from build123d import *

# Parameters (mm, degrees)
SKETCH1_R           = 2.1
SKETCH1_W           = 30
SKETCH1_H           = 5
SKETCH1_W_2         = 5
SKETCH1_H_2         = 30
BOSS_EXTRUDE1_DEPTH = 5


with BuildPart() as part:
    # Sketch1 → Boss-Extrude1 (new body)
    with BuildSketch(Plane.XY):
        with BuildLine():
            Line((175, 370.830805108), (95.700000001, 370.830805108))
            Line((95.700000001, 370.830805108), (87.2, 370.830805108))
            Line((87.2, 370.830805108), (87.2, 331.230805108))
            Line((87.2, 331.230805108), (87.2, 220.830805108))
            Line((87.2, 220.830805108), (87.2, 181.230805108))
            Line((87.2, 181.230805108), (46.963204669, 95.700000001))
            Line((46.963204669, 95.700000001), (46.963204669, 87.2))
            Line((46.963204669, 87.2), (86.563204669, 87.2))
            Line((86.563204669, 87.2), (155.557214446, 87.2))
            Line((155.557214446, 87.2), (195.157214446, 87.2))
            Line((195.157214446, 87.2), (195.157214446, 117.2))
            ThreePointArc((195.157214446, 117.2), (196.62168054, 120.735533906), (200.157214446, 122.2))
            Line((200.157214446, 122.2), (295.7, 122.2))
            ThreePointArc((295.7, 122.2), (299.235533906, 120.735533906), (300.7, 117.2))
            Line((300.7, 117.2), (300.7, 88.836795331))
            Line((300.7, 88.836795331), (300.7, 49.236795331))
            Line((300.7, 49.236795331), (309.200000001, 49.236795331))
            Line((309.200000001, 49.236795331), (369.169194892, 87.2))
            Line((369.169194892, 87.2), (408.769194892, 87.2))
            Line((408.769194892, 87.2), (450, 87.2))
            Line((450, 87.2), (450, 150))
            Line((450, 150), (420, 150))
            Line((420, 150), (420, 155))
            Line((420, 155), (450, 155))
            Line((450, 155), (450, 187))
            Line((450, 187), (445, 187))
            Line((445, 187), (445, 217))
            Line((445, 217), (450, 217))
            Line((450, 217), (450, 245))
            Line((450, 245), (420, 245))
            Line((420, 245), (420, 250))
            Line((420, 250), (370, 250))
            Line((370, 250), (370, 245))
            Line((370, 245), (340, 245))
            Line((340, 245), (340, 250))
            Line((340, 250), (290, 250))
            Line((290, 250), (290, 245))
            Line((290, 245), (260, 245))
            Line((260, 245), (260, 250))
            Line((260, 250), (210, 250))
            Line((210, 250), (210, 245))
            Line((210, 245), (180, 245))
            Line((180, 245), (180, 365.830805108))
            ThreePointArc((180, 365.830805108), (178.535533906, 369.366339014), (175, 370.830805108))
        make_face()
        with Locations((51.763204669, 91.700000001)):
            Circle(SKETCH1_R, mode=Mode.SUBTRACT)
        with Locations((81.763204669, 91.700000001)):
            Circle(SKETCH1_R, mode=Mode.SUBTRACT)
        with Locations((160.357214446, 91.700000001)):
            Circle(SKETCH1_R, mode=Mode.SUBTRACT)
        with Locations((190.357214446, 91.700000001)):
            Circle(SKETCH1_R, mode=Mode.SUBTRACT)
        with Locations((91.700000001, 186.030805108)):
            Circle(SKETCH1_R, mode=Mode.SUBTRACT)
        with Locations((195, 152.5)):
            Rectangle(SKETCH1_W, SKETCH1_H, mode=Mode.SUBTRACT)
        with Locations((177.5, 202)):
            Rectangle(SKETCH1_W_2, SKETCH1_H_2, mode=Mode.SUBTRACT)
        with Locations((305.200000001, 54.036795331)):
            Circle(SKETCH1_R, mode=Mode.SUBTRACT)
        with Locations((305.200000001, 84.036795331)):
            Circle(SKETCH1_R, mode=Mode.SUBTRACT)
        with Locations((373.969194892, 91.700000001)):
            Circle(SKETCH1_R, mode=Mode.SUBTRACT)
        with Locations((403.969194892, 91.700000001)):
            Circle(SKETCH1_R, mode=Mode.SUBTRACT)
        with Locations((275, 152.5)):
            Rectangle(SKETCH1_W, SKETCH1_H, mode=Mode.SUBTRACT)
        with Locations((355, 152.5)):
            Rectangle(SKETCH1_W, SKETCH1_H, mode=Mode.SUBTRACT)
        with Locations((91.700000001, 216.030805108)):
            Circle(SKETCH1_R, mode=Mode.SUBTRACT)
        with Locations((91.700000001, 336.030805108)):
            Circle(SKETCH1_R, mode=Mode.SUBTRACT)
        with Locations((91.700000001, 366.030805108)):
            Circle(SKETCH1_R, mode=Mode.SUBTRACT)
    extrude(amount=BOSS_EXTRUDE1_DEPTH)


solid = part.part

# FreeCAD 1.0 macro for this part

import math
import FreeCAD as App
import Part
import Sketcher

V = App.Vector


def add_polygon(sketch, points):
    """Adds a closed chain of lines whose ends are joined by coincident constraints."""
    first, n = sketch.GeometryCount, len(points)
    for a, b in zip(points, points[1:] + points[:1]):
        sketch.addGeometry(Part.LineSegment(App.Vector(*a, 0), App.Vector(*b, 0)), False)
    for i in range(n):
        sketch.addConstraint(Sketcher.Constraint("Coincident", first + i, 2, first + (i + 1) % n, 1))

doc = App.newDocument("Part")
body = doc.addObject("PartDesign::Body", "Body")

# Sketch on XY plane
sketch1 = body.newObject("Sketcher::SketchObject", "Sketch")
sketch1.AttachmentSupport = (doc.getObject("XY_Plane"), [""])
sketch1.MapMode = "FlatFace"
sketch1.addGeometry(Part.LineSegment(V(175, 370.8, 0), V(87.2, 370.8, 0)), False)  # 0
sketch1.addGeometry(Part.LineSegment(V(87.2, 370.8, 0), V(87.2, 181.2, 0)), False)  # 1
sketch1.addGeometry(Part.LineSegment(V(87.2, 181.2, 0), V(47, 95.7, 0)), False)  # 2
sketch1.addGeometry(Part.LineSegment(V(47, 95.7, 0), V(47, 87.2, 0)), False)  # 3
sketch1.addGeometry(Part.LineSegment(V(47, 87.2, 0), V(195.2, 87.2, 0)), False)  # 4
sketch1.addGeometry(Part.LineSegment(V(195.2, 87.2, 0), V(195.2, 117.2, 0)), False)  # 5
sketch1.addGeometry(Part.ArcOfCircle(Part.Circle(V(200.2, 117.2, 0), V(0, 0, 1), 5), math.radians(90), math.radians(180)), False)  # 6
sketch1.addGeometry(Part.LineSegment(V(200.2, 122.2, 0), V(295.7, 122.2, 0)), False)  # 7
sketch1.addGeometry(Part.ArcOfCircle(Part.Circle(V(295.7, 117.2, 0), V(0, 0, 1), 5), math.radians(0), math.radians(90)), False)  # 8
sketch1.addGeometry(Part.LineSegment(V(300.7, 117.2, 0), V(300.7, 49.2, 0)), False)  # 9
sketch1.addGeometry(Part.LineSegment(V(300.7, 49.2, 0), V(309.2, 49.2, 0)), False)  # 10
sketch1.addGeometry(Part.LineSegment(V(309.2, 49.2, 0), V(369.2, 87.2, 0)), False)  # 11
sketch1.addGeometry(Part.LineSegment(V(369.2, 87.2, 0), V(450, 87.2, 0)), False)  # 12
sketch1.addGeometry(Part.LineSegment(V(450, 87.2, 0), V(450, 150, 0)), False)  # 13
sketch1.addGeometry(Part.LineSegment(V(450, 150, 0), V(420, 150, 0)), False)  # 14
sketch1.addGeometry(Part.LineSegment(V(420, 150, 0), V(420, 155, 0)), False)  # 15
sketch1.addGeometry(Part.LineSegment(V(420, 155, 0), V(450, 155, 0)), False)  # 16
sketch1.addGeometry(Part.LineSegment(V(450, 155, 0), V(450, 187, 0)), False)  # 17
sketch1.addGeometry(Part.LineSegment(V(450, 187, 0), V(445, 187, 0)), False)  # 18
sketch1.addGeometry(Part.LineSegment(V(445, 187, 0), V(445, 217, 0)), False)  # 19
sketch1.addGeometry(Part.LineSegment(V(445, 217, 0), V(450, 217, 0)), False)  # 20
sketch1.addGeometry(Part.LineSegment(V(450, 217, 0), V(450, 245, 0)), False)  # 21
sketch1.addGeometry(Part.LineSegment(V(450, 245, 0), V(420, 245, 0)), False)  # 22
sketch1.addGeometry(Part.LineSegment(V(420, 245, 0), V(420, 250, 0)), False)  # 23
sketch1.addGeometry(Part.LineSegment(V(420, 250, 0), V(370, 250, 0)), False)  # 24
sketch1.addGeometry(Part.LineSegment(V(370, 250, 0), V(370, 245, 0)), False)  # 25
sketch1.addGeometry(Part.LineSegment(V(370, 245, 0), V(340, 245, 0)), False)  # 26
sketch1.addGeometry(Part.LineSegment(V(340, 245, 0), V(340, 250, 0)), False)  # 27
sketch1.addGeometry(Part.LineSegment(V(340, 250, 0), V(290, 250, 0)), False)  # 28
sketch1.addGeometry(Part.LineSegment(V(290, 250, 0), V(290, 245, 0)), False)  # 29
sketch1.addGeometry(Part.LineSegment(V(290, 245, 0), V(260, 245, 0)), False)  # 30
sketch1.addGeometry(Part.LineSegment(V(260, 245, 0), V(260, 250, 0)), False)  # 31
sketch1.addGeometry(Part.LineSegment(V(260, 250, 0), V(210, 250, 0)), False)  # 32
sketch1.addGeometry(Part.LineSegment(V(210, 250, 0), V(210, 245, 0)), False)  # 33
sketch1.addGeometry(Part.LineSegment(V(210, 245, 0), V(180, 245, 0)), False)  # 34
sketch1.addGeometry(Part.LineSegment(V(180, 245, 0), V(180, 365.8, 0)), False)  # 35
sketch1.addGeometry(Part.ArcOfCircle(Part.Circle(V(175, 365.8, 0), V(0, 0, 1), 5), math.radians(0), math.radians(90)), False)  # 36
sketch1.addGeometry(Part.Circle(V(51.8, 91.7, 0), V(0, 0, 1), 2.1), False)  # 37
sketch1.addGeometry(Part.Circle(V(81.8, 91.7, 0), V(0, 0, 1), 2.1), False)  # 38
sketch1.addGeometry(Part.Circle(V(160.4, 91.7, 0), V(0, 0, 1), 2.1), False)  # 39
sketch1.addGeometry(Part.Circle(V(190.4, 91.7, 0), V(0, 0, 1), 2.1), False)  # 40
sketch1.addGeometry(Part.Circle(V(91.7, 186, 0), V(0, 0, 1), 2.1), False)  # 41
add_polygon(sketch1, [(210, 150), (180, 150), (180, 155), (210, 155)])  # lines 42-45
add_polygon(sketch1, [(180, 187), (175, 187), (175, 217), (180, 217)])  # lines 46-49
sketch1.addGeometry(Part.Circle(V(305.2, 54, 0), V(0, 0, 1), 2.1), False)  # 50
sketch1.addGeometry(Part.Circle(V(305.2, 84, 0), V(0, 0, 1), 2.1), False)  # 51
sketch1.addGeometry(Part.Circle(V(374, 91.7, 0), V(0, 0, 1), 2.1), False)  # 52
sketch1.addGeometry(Part.Circle(V(404, 91.7, 0), V(0, 0, 1), 2.1), False)  # 53
add_polygon(sketch1, [(290, 150), (260, 150), (260, 155), (290, 155)])  # lines 54-57
add_polygon(sketch1, [(370, 150), (340, 150), (340, 155), (370, 155)])  # lines 58-61
sketch1.addGeometry(Part.Circle(V(91.7, 216, 0), V(0, 0, 1), 2.1), False)  # 62
sketch1.addGeometry(Part.Circle(V(91.7, 336, 0), V(0, 0, 1), 2.1), False)  # 63
sketch1.addGeometry(Part.Circle(V(91.7, 366, 0), V(0, 0, 1), 2.1), False)  # 64
sketch1.addConstraint([
    Sketcher.Constraint("Coincident", 0, 2, 1, 1),
    Sketcher.Constraint("Coincident", 1, 2, 2, 1),
    Sketcher.Constraint("Coincident", 2, 2, 3, 1),
    Sketcher.Constraint("Coincident", 3, 2, 4, 1),
    Sketcher.Constraint("Coincident", 4, 2, 5, 1),
    Sketcher.Constraint("Tangent", 5, 2, 6, 2),
    Sketcher.Constraint("Tangent", 6, 1, 7, 1),
    Sketcher.Constraint("Tangent", 7, 2, 8, 2),
    Sketcher.Constraint("Tangent", 8, 1, 9, 1),
    Sketcher.Constraint("Coincident", 9, 2, 10, 1),
    Sketcher.Constraint("Coincident", 10, 2, 11, 1),
    Sketcher.Constraint("Coincident", 11, 2, 12, 1),
    Sketcher.Constraint("Coincident", 12, 2, 13, 1),
    Sketcher.Constraint("Coincident", 13, 2, 14, 1),
    Sketcher.Constraint("Coincident", 14, 2, 15, 1),
    Sketcher.Constraint("Coincident", 15, 2, 16, 1),
    Sketcher.Constraint("Coincident", 16, 2, 17, 1),
    Sketcher.Constraint("Coincident", 17, 2, 18, 1),
    Sketcher.Constraint("Coincident", 18, 2, 19, 1),
    Sketcher.Constraint("Coincident", 19, 2, 20, 1),
    Sketcher.Constraint("Coincident", 20, 2, 21, 1),
    Sketcher.Constraint("Coincident", 21, 2, 22, 1),
    Sketcher.Constraint("Coincident", 22, 2, 23, 1),
    Sketcher.Constraint("Coincident", 23, 2, 24, 1),
    Sketcher.Constraint("Coincident", 24, 2, 25, 1),
    Sketcher.Constraint("Coincident", 25, 2, 26, 1),
    Sketcher.Constraint("Coincident", 26, 2, 27, 1),
    Sketcher.Constraint("Coincident", 27, 2, 28, 1),
    Sketcher.Constraint("Coincident", 28, 2, 29, 1),
    Sketcher.Constraint("Coincident", 29, 2, 30, 1),
    Sketcher.Constraint("Coincident", 30, 2, 31, 1),
    Sketcher.Constraint("Coincident", 31, 2, 32, 1),
    Sketcher.Constraint("Coincident", 32, 2, 33, 1),
    Sketcher.Constraint("Coincident", 33, 2, 34, 1),
    Sketcher.Constraint("Coincident", 34, 2, 35, 1),
    Sketcher.Constraint("Tangent", 35, 2, 36, 1),
    Sketcher.Constraint("Tangent", 36, 2, 0, 1),
    Sketcher.Constraint("Horizontal", 0),
    Sketcher.Constraint("Vertical", 1),
    Sketcher.Constraint("Vertical", 3),
    Sketcher.Constraint("Horizontal", 4),
    Sketcher.Constraint("Vertical", 5),
    Sketcher.Constraint("Horizontal", 7),
    Sketcher.Constraint("Vertical", 9),
    Sketcher.Constraint("Horizontal", 10),
    Sketcher.Constraint("Horizontal", 12),
    Sketcher.Constraint("Vertical", 13),
    Sketcher.Constraint("Horizontal", 14),
    Sketcher.Constraint("Vertical", 15),
    Sketcher.Constraint("Horizontal", 16),
    Sketcher.Constraint("Vertical", 17),
    Sketcher.Constraint("Horizontal", 18),
    Sketcher.Constraint("Vertical", 19),
    Sketcher.Constraint("Horizontal", 20),
    Sketcher.Constraint("Vertical", 21),
    Sketcher.Constraint("Horizontal", 22),
    Sketcher.Constraint("Vertical", 23),
    Sketcher.Constraint("Horizontal", 24),
    Sketcher.Constraint("Vertical", 25),
    Sketcher.Constraint("Horizontal", 26),
    Sketcher.Constraint("Vertical", 27),
    Sketcher.Constraint("Horizontal", 28),
    Sketcher.Constraint("Vertical", 29),
    Sketcher.Constraint("Horizontal", 30),
    Sketcher.Constraint("Vertical", 31),
    Sketcher.Constraint("Horizontal", 32),
    Sketcher.Constraint("Vertical", 33),
    Sketcher.Constraint("Horizontal", 34),
    Sketcher.Constraint("Vertical", 35),
    Sketcher.Constraint("Horizontal", 42),
    Sketcher.Constraint("Vertical", 43),
    Sketcher.Constraint("Horizontal", 44),
    Sketcher.Constraint("Vertical", 45),
    Sketcher.Constraint("Horizontal", 46),
    Sketcher.Constraint("Vertical", 47),
    Sketcher.Constraint("Horizontal", 48),
    Sketcher.Constraint("Vertical", 49),
    Sketcher.Constraint("Horizontal", 54),
    Sketcher.Constraint("Vertical", 55),
    Sketcher.Constraint("Horizontal", 56),
    Sketcher.Constraint("Vertical", 57),
    Sketcher.Constraint("Horizontal", 58),
    Sketcher.Constraint("Vertical", 59),
    Sketcher.Constraint("Horizontal", 60),
    Sketcher.Constraint("Vertical", 61),
    Sketcher.Constraint("Equal", 6, 8),
    Sketcher.Constraint("Equal", 8, 36),
    Sketcher.Constraint("Equal", 37, 38),
    Sketcher.Constraint("Equal", 38, 39),
    Sketcher.Constraint("Equal", 39, 40),
    Sketcher.Constraint("Equal", 40, 41),
    Sketcher.Constraint("Equal", 41, 50),
    Sketcher.Constraint("Equal", 50, 51),
    Sketcher.Constraint("Equal", 51, 52),
    Sketcher.Constraint("Equal", 52, 53),
    Sketcher.Constraint("Equal", 53, 62),
    Sketcher.Constraint("Equal", 62, 63),
    Sketcher.Constraint("Equal", 63, 64),
    Sketcher.Constraint("Horizontal", 37, 3, 38, 3),
    Sketcher.Constraint("Horizontal", 38, 3, 39, 3),
    Sketcher.Constraint("Horizontal", 39, 3, 40, 3),
    Sketcher.Constraint("Horizontal", 40, 3, 52, 3),
    Sketcher.Constraint("Horizontal", 52, 3, 53, 3),
    Sketcher.Constraint("Horizontal", 4, 2, 11, 2),
    Sketcher.Constraint("Horizontal", 22, 2, 25, 2),
    Sketcher.Constraint("Horizontal", 24, 2, 27, 2),
    Sketcher.Constraint("Horizontal", 26, 2, 29, 2),
    Sketcher.Constraint("Horizontal", 28, 2, 31, 2),
    Sketcher.Constraint("Horizontal", 30, 2, 33, 2),
    Sketcher.Constraint("Horizontal", 14, 2, 42, 2),
    Sketcher.Constraint("Horizontal", 16, 2, 43, 2),
    Sketcher.Constraint("Horizontal", 18, 2, 46, 2),
    Sketcher.Constraint("Horizontal", 20, 2, 47, 2),
    Sketcher.Constraint("Horizontal", 45, 2, 54, 2),
    Sketcher.Constraint("Horizontal", 44, 2, 55, 2),
    Sketcher.Constraint("Horizontal", 57, 2, 58, 2),
    Sketcher.Constraint("Horizontal", 56, 2, 59, 2),
    Sketcher.Constraint("Vertical", 50, 3, 51, 3),
    Sketcher.Constraint("Vertical", 41, 3, 62, 3),
    Sketcher.Constraint("Vertical", 62, 3, 63, 3),
    Sketcher.Constraint("Vertical", 63, 3, 64, 3),
    Sketcher.Constraint("Vertical", 13, 2, 16, 2),
    Sketcher.Constraint("Vertical", 17, 2, 20, 2),
    Sketcher.Constraint("Vertical", 15, 2, 22, 2),
    Sketcher.Constraint("Vertical", 35, 2, 42, 2),
    Sketcher.Constraint("Vertical", 33, 2, 44, 2),
    Sketcher.Constraint("Vertical", 36, 2, 46, 2),
    Sketcher.Constraint("Vertical", 43, 2, 48, 2),
    Sketcher.Constraint("Vertical", 31, 2, 54, 2),
    Sketcher.Constraint("Vertical", 29, 2, 56, 2),
    Sketcher.Constraint("Vertical", 27, 2, 58, 2),
    Sketcher.Constraint("Vertical", 25, 2, 60, 2),
    Sketcher.Constraint("Equal", 22, 26),
    Sketcher.Constraint("Equal", 24, 28),
    Sketcher.Constraint("Equal", 26, 30),
    Sketcher.Constraint("Equal", 28, 32),
    Sketcher.Constraint("Equal", 30, 34),
    Sketcher.Constraint("Equal", 20, 46),
    Sketcher.Constraint("Equal", 10, 3),
    Sketcher.Constraint("Equal", 60, 5),
    Sketcher.Constraint("Equal", 48, 15),
    Sketcher.Constraint("Equal", 5, 19),
    Sketcher.Constraint("Equal", 15, 23),
    Sketcher.Constraint("Radius", 6, 5.0),
    Sketcher.Constraint("Diameter", 37, 4.2),
    Sketcher.Constraint("DistanceX", 14, 2, 14, 1, 30.0),
    Sketcher.Constraint("DistanceX", 24, 2, 24, 1, 50.0),
    Sketcher.Constraint("DistanceY", 17, 1, 17, 2, 32.0),
    Sketcher.Constraint("DistanceY", 21, 1, 21, 2, 28.0),
    Sketcher.Constraint("DistanceX", 0, 2, 0, 1, 87.8),
    Sketcher.Constraint("DistanceX", 10, 1, 10, 2, 8.5),
    Sketcher.Constraint("DistanceY", 1, 2, 1, 1, 189.6),
    Sketcher.Constraint("DistanceY", 13, 1, 13, 2, 62.8),
    Sketcher.Constraint("DistanceX", -1, 1, 36, 3, 175.0),
    Sketcher.Constraint("DistanceY", -1, 1, 13, 2, 150.0),
    Sketcher.Constraint("DistanceX", -1, 1, 8, 3, 295.7),
    Sketcher.Constraint("DistanceY", -1, 1, 37, 3, 91.7),
    Sketcher.Constraint("DistanceX", -1, 1, 41, 3, 91.7),
    Sketcher.Constraint("DistanceX", -1, 1, 50, 3, 305.2),
    Sketcher.Constraint("DistanceX", 4, 1, 4, 2, 148.19401),
    Sketcher.Constraint("Distance", 2, 94.522581),
    Sketcher.Constraint("DistanceX", 7, 1, 7, 2, 95.542786),
    Sketcher.Constraint("DistanceX", 12, 1, 12, 2, 80.830805),
    Sketcher.Constraint("DistanceY", 9, 2, 9, 1, 67.963205),
    Sketcher.Constraint("DistanceX", -1, 1, 37, 3, 51.763205),
    Sketcher.Constraint("DistanceX", -1, 1, 38, 3, 81.763205),
    Sketcher.Constraint("DistanceX", -1, 1, 39, 3, 160.357214),
    Sketcher.Constraint("DistanceX", -1, 1, 40, 3, 190.357214),
    Sketcher.Constraint("DistanceY", -1, 1, 41, 3, 186.030805),
    Sketcher.Constraint("DistanceY", -1, 1, 50, 3, 54.036795),
    Sketcher.Constraint("DistanceY", -1, 1, 51, 3, 84.036795),
    Sketcher.Constraint("DistanceX", -1, 1, 52, 3, 373.969195),
    Sketcher.Constraint("DistanceX", -1, 1, 53, 3, 403.969195),
    Sketcher.Constraint("DistanceY", -1, 1, 62, 3, 216.030805),
    Sketcher.Constraint("DistanceY", -1, 1, 63, 3, 336.030805),
    Sketcher.Constraint("DistanceY", -1, 1, 64, 3, 366.030805),
])
pad1 = body.newObject("PartDesign::Pad", "Pad")
pad1.Profile = sketch1
pad1.Length = 5

doc.recompute()
